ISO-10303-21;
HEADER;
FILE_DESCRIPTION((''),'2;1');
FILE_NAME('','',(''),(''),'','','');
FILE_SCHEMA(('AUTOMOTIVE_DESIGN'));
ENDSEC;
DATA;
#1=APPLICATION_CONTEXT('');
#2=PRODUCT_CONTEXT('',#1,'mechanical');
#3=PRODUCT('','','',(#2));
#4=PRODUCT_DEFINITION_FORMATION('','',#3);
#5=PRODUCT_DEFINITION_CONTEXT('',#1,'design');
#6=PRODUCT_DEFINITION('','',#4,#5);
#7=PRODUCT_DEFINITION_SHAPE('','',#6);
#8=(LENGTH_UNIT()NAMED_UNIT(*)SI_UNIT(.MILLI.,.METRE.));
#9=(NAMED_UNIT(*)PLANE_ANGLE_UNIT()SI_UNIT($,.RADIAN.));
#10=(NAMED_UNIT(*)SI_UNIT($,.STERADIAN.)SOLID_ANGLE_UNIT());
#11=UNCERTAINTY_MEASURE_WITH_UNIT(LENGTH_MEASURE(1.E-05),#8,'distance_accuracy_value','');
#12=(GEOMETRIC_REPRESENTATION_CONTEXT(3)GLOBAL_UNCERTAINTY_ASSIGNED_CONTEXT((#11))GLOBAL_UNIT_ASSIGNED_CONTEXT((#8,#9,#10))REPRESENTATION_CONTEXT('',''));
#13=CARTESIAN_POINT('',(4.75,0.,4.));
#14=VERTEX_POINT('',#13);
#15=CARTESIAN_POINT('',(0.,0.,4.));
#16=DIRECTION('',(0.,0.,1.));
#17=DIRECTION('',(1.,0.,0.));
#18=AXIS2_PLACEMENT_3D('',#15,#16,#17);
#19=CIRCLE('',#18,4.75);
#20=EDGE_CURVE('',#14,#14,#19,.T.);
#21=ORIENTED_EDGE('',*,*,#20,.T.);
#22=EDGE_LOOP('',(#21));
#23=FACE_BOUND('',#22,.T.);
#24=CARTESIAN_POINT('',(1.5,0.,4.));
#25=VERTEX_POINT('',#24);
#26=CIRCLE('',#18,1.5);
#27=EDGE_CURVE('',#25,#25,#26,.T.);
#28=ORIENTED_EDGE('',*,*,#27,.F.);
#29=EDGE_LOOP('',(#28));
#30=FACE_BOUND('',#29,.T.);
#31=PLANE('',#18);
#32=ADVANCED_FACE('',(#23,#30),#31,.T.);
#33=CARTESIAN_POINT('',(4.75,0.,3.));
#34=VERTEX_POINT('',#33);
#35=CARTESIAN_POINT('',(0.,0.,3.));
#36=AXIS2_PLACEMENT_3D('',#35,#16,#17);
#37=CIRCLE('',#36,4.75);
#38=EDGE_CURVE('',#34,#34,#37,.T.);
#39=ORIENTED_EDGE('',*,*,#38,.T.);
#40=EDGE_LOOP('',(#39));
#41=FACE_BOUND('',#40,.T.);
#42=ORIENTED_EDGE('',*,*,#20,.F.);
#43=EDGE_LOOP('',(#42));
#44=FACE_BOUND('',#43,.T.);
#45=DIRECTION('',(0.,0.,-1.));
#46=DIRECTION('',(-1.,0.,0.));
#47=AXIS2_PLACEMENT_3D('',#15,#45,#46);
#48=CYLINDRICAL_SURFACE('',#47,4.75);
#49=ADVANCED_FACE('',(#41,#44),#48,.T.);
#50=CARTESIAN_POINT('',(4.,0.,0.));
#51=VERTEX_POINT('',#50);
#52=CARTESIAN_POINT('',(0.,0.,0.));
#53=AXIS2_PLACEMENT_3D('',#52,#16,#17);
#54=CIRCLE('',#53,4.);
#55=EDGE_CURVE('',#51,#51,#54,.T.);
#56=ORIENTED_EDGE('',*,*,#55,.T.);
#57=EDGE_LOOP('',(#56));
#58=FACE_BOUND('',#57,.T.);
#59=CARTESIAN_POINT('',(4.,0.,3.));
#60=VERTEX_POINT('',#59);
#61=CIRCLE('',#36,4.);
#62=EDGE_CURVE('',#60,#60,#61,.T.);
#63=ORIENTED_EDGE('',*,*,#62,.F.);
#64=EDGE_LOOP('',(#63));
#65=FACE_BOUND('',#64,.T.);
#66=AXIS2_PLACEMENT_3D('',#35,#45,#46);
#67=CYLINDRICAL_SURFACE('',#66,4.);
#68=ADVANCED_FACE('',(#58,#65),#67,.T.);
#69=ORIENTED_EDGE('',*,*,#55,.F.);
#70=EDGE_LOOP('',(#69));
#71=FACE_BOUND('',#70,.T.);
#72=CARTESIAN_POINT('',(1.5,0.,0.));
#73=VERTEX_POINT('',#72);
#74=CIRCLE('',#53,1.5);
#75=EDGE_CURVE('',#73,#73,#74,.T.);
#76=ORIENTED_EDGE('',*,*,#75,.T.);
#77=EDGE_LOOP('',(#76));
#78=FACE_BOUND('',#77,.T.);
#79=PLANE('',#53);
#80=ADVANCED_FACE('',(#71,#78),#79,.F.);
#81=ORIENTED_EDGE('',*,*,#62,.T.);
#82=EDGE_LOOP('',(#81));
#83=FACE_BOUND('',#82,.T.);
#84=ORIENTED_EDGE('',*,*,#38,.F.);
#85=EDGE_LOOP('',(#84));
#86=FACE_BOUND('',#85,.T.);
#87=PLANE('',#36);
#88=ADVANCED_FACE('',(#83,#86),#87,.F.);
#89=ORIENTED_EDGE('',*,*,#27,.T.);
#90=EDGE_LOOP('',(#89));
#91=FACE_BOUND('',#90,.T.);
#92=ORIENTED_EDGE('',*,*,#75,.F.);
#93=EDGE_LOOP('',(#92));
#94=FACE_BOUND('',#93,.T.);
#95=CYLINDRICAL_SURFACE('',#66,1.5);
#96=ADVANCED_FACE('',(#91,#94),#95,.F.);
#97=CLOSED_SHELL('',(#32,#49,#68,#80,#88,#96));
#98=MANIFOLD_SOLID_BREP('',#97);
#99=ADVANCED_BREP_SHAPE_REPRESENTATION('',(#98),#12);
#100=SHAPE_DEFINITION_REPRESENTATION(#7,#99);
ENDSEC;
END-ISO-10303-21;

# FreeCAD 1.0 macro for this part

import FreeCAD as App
import Part
import Sketcher
from FreeCAD import Vector
Q = App.Units.Quantity

doc = App.newDocument("Part")
body = doc.addObject("PartDesign::Body", "Body")

# Sketch on XY plane
sketch1 = body.newObject("Sketcher::SketchObject", "Sketch")
sketch1.AttachmentSupport = (doc.getObject("XY_Plane"), [""])
sketch1.MapMode = "FlatFace"
sketch1.addGeometry([
    Part.Circle(Vector(0, 0, 0), Vector(0, 0, 1), 4),
    Part.Circle(Vector(0, 0, 0), Vector(0, 0, 1), 1.5),
], False)
sketch1.addConstraint([
    Sketcher.Constraint("Coincident", 0, 3, -1, 1),
    Sketcher.Constraint("Coincident", 1, 3, -1, 1),
    Sketcher.Constraint("Diameter", 0, Q("8 mm")),
    Sketcher.Constraint("Diameter", 1, Q("3 mm")),
])
pad1 = body.newObject("PartDesign::Pad", "Pad")
pad1.Profile = sketch1
pad1.Length = 3

# Sketch on XY plane
sketch2 = body.newObject("Sketcher::SketchObject", "Sketch001")
sketch2.AttachmentSupport = (doc.getObject("XY_Plane"), [""])
sketch2.MapMode = "FlatFace"
sketch2.AttachmentOffset = App.Placement(Vector(0, 0, 3), App.Rotation())
sketch2.addGeometry([
    Part.Circle(Vector(0, 0, 0), Vector(0, 0, 1), 4.75),
    Part.Circle(Vector(0, 0, 0), Vector(0, 0, 1), 1.5),
], False)
sketch2.addConstraint([
    Sketcher.Constraint("Coincident", 0, 3, -1, 1),
    Sketcher.Constraint("Coincident", 1, 3, -1, 1),
    Sketcher.Constraint("Diameter", 1, Q("3 mm")),
    Sketcher.Constraint("Diameter", 0, Q("9.5 mm")),
])
pad2 = body.newObject("PartDesign::Pad", "Pad001")
pad2.Profile = sketch2
pad2.Length = 1

doc.recompute()
